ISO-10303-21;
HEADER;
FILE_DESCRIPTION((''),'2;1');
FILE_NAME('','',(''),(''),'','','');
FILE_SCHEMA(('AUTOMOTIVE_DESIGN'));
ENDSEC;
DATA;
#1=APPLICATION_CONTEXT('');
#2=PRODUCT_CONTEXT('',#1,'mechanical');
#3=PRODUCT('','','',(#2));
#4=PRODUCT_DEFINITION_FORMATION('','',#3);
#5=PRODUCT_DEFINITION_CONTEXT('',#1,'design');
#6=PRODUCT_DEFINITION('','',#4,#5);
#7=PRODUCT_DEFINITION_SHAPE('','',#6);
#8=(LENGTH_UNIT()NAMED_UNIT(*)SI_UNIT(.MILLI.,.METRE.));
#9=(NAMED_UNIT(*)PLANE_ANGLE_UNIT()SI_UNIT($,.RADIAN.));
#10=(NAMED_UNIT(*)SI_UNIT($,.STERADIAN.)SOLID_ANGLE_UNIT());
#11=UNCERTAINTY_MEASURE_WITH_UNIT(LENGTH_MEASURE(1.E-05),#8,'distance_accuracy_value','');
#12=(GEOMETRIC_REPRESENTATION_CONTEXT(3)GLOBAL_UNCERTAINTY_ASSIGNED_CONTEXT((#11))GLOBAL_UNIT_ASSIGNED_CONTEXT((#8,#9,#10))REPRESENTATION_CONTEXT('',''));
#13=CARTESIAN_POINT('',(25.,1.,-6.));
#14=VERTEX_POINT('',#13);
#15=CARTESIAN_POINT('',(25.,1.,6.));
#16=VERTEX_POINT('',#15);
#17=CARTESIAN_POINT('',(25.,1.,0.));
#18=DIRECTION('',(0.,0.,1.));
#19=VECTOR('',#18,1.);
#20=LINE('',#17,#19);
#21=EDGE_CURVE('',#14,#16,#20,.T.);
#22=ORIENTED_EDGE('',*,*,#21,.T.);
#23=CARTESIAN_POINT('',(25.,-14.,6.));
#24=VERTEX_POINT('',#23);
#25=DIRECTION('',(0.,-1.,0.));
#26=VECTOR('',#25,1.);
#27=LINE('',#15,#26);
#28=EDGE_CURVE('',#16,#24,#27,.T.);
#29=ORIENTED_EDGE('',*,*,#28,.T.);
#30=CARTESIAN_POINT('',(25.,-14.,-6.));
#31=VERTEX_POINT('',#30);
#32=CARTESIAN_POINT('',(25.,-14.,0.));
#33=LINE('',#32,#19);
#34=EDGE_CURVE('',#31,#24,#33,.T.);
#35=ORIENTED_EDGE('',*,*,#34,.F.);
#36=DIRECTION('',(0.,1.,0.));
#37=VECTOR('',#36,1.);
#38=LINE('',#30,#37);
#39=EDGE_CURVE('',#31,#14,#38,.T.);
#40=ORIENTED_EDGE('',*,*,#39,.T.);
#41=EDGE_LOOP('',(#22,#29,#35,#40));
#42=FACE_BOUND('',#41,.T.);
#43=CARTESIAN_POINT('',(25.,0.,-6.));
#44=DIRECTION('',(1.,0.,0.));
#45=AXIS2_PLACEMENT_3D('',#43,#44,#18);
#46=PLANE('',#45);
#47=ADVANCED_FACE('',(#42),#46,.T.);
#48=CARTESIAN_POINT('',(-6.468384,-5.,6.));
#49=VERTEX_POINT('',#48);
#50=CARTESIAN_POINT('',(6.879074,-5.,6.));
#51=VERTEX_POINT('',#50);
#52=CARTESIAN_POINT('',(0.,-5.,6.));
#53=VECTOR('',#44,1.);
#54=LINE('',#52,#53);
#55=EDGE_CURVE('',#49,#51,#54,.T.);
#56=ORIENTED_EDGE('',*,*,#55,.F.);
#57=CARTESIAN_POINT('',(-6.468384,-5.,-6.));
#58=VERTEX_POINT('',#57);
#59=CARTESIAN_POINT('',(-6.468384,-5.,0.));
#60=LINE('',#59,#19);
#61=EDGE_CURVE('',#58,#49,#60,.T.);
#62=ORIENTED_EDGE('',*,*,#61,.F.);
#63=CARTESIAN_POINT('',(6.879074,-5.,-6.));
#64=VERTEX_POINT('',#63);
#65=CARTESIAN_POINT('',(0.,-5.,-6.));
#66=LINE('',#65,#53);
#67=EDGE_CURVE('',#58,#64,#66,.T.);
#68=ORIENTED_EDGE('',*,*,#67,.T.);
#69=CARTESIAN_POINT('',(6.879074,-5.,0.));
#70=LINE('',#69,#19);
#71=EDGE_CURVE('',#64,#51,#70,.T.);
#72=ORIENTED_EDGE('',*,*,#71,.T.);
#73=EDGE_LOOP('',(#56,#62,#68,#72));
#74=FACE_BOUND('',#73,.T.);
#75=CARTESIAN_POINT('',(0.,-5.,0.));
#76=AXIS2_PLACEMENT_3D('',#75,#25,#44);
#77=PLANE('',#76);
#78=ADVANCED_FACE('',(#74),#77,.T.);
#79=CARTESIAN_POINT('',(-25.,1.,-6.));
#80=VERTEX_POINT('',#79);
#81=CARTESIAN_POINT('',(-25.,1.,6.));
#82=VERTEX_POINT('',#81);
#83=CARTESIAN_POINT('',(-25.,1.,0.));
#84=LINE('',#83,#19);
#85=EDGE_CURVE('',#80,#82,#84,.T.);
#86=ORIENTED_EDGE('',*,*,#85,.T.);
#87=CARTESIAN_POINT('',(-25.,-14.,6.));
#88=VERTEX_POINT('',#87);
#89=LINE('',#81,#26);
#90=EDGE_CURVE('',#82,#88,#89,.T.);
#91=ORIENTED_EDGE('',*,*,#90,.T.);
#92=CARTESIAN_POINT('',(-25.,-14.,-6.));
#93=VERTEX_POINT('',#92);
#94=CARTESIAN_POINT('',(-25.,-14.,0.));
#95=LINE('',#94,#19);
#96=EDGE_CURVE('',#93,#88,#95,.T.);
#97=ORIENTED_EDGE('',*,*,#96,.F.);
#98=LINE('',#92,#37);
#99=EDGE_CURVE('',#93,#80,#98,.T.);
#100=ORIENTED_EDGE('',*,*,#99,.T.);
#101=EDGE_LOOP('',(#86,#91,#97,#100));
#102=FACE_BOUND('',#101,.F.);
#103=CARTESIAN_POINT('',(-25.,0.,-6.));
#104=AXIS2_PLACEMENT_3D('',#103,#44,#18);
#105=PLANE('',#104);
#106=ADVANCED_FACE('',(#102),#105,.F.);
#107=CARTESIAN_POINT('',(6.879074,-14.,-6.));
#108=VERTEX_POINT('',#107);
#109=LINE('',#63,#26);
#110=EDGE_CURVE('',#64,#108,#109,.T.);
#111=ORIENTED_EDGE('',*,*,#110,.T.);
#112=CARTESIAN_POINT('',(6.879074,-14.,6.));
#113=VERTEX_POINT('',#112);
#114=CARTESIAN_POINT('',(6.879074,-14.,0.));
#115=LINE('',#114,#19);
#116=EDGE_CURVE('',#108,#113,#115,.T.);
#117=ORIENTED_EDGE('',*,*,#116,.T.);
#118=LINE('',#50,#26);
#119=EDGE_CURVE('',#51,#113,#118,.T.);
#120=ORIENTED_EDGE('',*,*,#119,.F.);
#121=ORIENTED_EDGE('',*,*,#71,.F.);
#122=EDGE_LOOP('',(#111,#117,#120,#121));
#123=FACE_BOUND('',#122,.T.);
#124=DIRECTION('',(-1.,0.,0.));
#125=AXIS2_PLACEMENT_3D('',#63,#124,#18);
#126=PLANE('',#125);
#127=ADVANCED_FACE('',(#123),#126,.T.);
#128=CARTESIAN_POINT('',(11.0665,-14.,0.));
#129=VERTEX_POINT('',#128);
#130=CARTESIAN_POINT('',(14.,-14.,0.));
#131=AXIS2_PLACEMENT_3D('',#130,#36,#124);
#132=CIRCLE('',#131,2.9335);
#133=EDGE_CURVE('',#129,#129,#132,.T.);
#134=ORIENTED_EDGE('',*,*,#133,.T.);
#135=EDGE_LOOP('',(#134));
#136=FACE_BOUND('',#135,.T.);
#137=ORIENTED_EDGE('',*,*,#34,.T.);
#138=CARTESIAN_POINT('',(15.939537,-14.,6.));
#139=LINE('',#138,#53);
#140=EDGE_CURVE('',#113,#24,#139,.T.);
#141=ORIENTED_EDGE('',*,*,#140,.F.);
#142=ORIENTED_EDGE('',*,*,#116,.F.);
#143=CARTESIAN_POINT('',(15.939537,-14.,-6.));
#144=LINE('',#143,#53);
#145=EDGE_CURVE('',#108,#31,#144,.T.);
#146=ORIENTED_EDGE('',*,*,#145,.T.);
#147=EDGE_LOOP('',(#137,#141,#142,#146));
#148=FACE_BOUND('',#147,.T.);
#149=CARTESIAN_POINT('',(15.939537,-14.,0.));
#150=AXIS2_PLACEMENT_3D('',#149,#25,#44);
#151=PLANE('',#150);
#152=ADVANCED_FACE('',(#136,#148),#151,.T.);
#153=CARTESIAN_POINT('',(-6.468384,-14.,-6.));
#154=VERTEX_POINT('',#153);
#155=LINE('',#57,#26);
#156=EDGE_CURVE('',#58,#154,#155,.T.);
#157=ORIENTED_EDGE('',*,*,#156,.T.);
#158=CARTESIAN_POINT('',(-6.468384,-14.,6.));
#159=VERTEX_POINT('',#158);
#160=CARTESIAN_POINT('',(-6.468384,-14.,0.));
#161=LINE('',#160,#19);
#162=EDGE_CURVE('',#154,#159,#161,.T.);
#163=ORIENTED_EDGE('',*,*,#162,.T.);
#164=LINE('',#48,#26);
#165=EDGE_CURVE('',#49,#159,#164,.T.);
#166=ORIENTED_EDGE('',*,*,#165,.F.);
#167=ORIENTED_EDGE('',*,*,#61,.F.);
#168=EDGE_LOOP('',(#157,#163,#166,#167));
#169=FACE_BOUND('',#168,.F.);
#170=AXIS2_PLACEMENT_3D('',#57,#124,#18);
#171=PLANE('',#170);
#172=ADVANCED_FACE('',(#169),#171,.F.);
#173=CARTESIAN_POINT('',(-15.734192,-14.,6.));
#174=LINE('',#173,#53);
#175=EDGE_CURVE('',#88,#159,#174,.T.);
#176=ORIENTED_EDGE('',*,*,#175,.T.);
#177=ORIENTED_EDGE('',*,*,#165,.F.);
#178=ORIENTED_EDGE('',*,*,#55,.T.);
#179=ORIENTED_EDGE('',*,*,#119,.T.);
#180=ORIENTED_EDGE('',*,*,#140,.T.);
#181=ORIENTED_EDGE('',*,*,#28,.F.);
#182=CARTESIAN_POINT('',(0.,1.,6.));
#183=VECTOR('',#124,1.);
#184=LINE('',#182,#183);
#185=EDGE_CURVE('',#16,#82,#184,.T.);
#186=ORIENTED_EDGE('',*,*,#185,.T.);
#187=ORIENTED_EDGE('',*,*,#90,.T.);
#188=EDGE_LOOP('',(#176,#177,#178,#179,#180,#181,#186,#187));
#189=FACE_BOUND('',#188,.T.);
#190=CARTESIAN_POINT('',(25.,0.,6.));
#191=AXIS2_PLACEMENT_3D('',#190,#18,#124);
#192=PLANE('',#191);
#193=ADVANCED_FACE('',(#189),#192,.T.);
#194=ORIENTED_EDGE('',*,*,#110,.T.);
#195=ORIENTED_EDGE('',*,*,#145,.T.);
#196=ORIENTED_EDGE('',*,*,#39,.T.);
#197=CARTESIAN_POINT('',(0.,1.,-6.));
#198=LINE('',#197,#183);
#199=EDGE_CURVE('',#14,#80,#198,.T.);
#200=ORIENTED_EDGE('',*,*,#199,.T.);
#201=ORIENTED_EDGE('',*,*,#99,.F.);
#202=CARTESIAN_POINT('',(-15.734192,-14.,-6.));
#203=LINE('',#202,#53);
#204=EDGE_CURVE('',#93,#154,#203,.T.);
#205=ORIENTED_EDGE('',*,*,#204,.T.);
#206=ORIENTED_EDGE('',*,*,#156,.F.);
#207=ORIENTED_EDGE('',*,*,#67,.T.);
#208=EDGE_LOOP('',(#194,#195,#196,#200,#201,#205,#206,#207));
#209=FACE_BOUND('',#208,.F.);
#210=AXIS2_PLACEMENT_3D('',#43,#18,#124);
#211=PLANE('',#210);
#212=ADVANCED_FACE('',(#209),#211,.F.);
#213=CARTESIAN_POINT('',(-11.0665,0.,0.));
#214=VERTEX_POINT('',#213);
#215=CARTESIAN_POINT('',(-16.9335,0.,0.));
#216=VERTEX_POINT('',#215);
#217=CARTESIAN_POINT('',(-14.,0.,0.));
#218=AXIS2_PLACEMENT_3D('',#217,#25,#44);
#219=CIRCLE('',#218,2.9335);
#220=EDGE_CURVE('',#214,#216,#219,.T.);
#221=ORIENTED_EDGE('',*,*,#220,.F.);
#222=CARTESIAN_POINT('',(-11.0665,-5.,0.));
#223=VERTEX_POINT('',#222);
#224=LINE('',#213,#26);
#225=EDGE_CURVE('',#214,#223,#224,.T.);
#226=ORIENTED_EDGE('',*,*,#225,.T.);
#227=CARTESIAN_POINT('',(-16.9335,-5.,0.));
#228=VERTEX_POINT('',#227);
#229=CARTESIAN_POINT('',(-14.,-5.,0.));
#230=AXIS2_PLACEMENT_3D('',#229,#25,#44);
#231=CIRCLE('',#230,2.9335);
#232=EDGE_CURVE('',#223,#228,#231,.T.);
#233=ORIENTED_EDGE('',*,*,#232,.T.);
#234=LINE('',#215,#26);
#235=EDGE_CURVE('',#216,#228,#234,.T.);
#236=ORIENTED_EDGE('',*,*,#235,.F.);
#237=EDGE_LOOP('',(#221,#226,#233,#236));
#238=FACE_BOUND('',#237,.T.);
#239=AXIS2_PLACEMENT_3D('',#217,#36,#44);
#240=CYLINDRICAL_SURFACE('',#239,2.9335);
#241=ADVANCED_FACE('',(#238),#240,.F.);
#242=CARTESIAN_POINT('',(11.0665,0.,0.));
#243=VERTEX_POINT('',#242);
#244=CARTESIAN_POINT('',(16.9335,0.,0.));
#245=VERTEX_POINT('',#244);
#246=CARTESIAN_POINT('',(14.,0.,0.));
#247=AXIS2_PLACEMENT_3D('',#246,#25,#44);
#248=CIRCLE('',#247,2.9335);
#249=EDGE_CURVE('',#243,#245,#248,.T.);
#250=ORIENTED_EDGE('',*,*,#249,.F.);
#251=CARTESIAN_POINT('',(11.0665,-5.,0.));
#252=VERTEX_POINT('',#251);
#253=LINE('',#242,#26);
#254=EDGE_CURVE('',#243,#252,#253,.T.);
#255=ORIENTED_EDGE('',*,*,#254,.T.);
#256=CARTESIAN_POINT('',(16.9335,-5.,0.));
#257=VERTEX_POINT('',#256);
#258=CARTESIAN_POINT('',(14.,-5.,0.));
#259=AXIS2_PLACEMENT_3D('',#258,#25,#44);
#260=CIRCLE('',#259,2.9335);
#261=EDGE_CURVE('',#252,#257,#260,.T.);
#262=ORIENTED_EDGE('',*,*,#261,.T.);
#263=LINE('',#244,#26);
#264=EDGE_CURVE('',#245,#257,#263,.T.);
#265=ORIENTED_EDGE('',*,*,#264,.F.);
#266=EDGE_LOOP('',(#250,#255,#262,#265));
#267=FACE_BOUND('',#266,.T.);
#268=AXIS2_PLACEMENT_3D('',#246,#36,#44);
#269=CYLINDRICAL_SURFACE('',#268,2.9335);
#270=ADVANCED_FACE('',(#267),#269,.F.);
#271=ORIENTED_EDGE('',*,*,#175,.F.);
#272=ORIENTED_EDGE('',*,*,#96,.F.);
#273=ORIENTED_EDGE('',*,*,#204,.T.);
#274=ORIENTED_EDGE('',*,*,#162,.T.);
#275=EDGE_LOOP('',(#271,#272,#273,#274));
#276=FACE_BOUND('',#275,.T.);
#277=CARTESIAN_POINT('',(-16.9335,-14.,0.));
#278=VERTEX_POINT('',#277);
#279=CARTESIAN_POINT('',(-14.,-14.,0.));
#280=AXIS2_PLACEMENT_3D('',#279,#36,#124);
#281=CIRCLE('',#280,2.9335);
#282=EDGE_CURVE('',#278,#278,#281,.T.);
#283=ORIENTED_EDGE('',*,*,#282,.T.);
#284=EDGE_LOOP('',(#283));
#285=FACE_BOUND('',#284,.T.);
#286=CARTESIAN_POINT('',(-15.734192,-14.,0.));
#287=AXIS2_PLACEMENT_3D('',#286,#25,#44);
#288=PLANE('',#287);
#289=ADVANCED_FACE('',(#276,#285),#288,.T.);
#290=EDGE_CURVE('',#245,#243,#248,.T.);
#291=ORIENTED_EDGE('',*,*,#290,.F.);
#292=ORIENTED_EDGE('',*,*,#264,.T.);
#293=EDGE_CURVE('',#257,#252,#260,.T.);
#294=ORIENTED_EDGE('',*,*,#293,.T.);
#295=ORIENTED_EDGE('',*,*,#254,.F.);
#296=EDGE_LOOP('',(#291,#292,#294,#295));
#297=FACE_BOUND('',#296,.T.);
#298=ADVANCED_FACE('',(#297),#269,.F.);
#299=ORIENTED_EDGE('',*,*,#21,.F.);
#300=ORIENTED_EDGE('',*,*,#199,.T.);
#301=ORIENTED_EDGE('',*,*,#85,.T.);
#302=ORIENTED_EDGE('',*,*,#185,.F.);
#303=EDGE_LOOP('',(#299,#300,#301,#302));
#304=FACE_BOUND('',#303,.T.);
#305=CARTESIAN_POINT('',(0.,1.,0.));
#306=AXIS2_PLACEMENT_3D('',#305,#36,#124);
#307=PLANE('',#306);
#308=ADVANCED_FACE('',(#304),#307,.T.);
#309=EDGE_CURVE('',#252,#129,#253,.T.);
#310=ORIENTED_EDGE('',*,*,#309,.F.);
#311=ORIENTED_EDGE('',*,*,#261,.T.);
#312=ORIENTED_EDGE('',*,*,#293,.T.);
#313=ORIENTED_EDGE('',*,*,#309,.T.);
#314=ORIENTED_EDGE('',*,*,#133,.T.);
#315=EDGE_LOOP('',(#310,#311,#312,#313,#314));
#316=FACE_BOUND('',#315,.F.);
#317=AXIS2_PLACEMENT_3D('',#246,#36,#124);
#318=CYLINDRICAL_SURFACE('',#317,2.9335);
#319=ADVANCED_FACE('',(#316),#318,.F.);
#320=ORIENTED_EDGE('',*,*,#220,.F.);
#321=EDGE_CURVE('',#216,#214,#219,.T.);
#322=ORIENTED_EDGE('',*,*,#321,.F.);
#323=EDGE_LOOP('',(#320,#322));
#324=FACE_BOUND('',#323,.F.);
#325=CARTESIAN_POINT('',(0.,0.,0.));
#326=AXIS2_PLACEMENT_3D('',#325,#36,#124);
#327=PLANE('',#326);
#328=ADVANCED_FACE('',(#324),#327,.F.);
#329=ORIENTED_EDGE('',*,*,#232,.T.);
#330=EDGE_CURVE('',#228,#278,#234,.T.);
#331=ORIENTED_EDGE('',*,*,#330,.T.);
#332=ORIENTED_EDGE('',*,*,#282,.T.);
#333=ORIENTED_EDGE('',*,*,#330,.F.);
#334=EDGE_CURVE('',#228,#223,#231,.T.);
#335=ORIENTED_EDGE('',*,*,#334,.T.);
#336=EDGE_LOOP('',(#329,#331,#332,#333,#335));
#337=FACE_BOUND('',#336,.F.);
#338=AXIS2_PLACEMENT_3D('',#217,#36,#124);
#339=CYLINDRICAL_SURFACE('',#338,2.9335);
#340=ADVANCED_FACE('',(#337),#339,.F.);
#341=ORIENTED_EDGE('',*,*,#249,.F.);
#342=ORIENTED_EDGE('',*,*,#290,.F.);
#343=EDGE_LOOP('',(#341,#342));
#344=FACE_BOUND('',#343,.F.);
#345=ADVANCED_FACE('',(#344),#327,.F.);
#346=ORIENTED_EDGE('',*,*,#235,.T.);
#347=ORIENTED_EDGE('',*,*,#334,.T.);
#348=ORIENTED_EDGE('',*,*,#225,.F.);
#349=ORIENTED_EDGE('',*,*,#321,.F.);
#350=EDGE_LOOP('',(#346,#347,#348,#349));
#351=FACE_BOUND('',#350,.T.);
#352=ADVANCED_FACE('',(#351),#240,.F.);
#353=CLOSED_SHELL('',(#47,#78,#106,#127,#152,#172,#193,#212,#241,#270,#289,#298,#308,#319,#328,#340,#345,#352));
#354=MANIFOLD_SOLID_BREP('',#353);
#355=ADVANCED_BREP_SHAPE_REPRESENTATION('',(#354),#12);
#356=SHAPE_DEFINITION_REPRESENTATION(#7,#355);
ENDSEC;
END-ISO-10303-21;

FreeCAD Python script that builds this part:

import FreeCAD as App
import Part
import Sketcher
from FreeCAD import Vector

doc = App.newDocument("Part")
params = doc.addObject("Spreadsheet::Sheet", "Params")
for row, (alias, value) in enumerate([
    ("sketch1_width", "50 mm"),
    ("sketch1_height", "12 mm"),
    ("pad1_length", "5 mm"),
    ("sketch2_height", "12 mm"),
    ("pad2_length", "9 mm"),
    ("pocket1_length", "25 mm"),
    ("sketch4_width", "50 mm"),
    ("sketch4_height", "12 mm"),
    ("pad3_length", "1 mm"),
], start=1):
    params.set(f"A{row}", alias)
    params.set(f"B{row}", "=" + value)
    params.setAlias(f"B{row}", alias)

body = doc.addObject("PartDesign::Body", "Body")

sketch1 = body.newObject("Sketcher::SketchObject", "Sketch")
sketch1.AttachmentSupport = (doc.getObject("XZ_Plane"), [""])
sketch1.MapMode = "FlatFace"
sketch1.addGeometry(Part.LineSegment(Vector(-25, 6, 0), Vector(-25, -6, 0)), False)
sketch1.addGeometry(Part.LineSegment(Vector(-25, -6, 0), Vector(25, -6, 0)), False)
sketch1.addGeometry(Part.LineSegment(Vector(25, -6, 0), Vector(25, 6, 0)), False)
sketch1.addGeometry(Part.LineSegment(Vector(25, 6, 0), Vector(-25, 6, 0)), False)
sketch1.addGeometry(Part.Circle(Vector(-14, 0, 0), Vector(0, 0, 1), 2.9), False)
sketch1.addGeometry(Part.Circle(Vector(14, 0, 0), Vector(0, 0, 1), 2.9), False)
sketch1.addConstraint(Sketcher.Constraint("Coincident", 0, 2, 1, 1))
sketch1.addConstraint(Sketcher.Constraint("Coincident", 1, 2, 2, 1))
sketch1.addConstraint(Sketcher.Constraint("Coincident", 2, 2, 3, 1))
sketch1.addConstraint(Sketcher.Constraint("Coincident", 3, 2, 0, 1))
sketch1.addConstraint(Sketcher.Constraint("Vertical", 0))
sketch1.addConstraint(Sketcher.Constraint("Horizontal", 1))
sketch1.addConstraint(Sketcher.Constraint("Vertical", 2))
sketch1.addConstraint(Sketcher.Constraint("Horizontal", 3))
sketch1.addConstraint(Sketcher.Constraint("Equal", 4, 5))
sketch1.addConstraint(Sketcher.Constraint("Symmetric", 4, 3, 5, 3, -1, 1))
sketch1.addConstraint(Sketcher.Constraint("Symmetric", 0, 2, 2, 2, -1, 1))
sketch1.addConstraint(Sketcher.Constraint("PointOnObject", 4, 3, -1))
sketch1.addConstraint(Sketcher.Constraint("DistanceX", 1, 1, 1, 2, 50.0))
sketch1.addConstraint(Sketcher.Constraint("DistanceY", 0, 2, 0, 1, 12.0))
sketch1.addConstraint(Sketcher.Constraint("Diameter", 4, 5.867))
sketch1.addConstraint(Sketcher.Constraint("DistanceX", 4, 3, -1, 1, 14.0))
sketch1.setExpression("Constraints[12]", "Params.sketch1_width")
sketch1.setExpression("Constraints[13]", "Params.sketch1_height")
pad1 = body.newObject("PartDesign::Pad", "Pad")
pad1.Profile = sketch1
pad1.setExpression("Length", "Params.pad1_length")

sketch2 = body.newObject("Sketcher::SketchObject", "Sketch001")
sketch2.AttachmentSupport = (doc.getObject("XZ_Plane"), [""])
sketch2.MapMode = "FlatFace"
sketch2.AttachmentOffset = App.Placement(Vector(0, 0, 5), App.Rotation())
sketch2.addGeometry(Part.LineSegment(Vector(-25, 6, 0), Vector(-25, -6, 0)), False)
sketch2.addGeometry(Part.LineSegment(Vector(-25, -6, 0), Vector(-6, -6, 0)), False)
sketch2.addGeometry(Part.LineSegment(Vector(-6, -6, 0), Vector(-6, 6, 0)), False)
sketch2.addGeometry(Part.LineSegment(Vector(-6, 6, 0), Vector(-25, 6, 0)), False)
sketch2.addGeometry(Part.LineSegment(Vector(7, 6, 0), Vector(7, -6, 0)), False)
sketch2.addGeometry(Part.LineSegment(Vector(7, -6, 0), Vector(25, -6, 0)), False)
sketch2.addGeometry(Part.LineSegment(Vector(25, -6, 0), Vector(25, 6, 0)), False)
sketch2.addGeometry(Part.LineSegment(Vector(25, 6, 0), Vector(7, 6, 0)), False)
sketch2.addConstraint(Sketcher.Constraint("Coincident", 0, 2, 1, 1))
sketch2.addConstraint(Sketcher.Constraint("Coincident", 1, 2, 2, 1))
sketch2.addConstraint(Sketcher.Constraint("Coincident", 2, 2, 3, 1))
sketch2.addConstraint(Sketcher.Constraint("Coincident", 3, 2, 0, 1))
sketch2.addConstraint(Sketcher.Constraint("Coincident", 4, 2, 5, 1))
sketch2.addConstraint(Sketcher.Constraint("Coincident", 5, 2, 6, 1))
sketch2.addConstraint(Sketcher.Constraint("Coincident", 6, 2, 7, 1))
sketch2.addConstraint(Sketcher.Constraint("Coincident", 7, 2, 4, 1))
sketch2.addConstraint(Sketcher.Constraint("Vertical", 0))
sketch2.addConstraint(Sketcher.Constraint("Horizontal", 1))
sketch2.addConstraint(Sketcher.Constraint("Vertical", 2))
sketch2.addConstraint(Sketcher.Constraint("Horizontal", 3))
sketch2.addConstraint(Sketcher.Constraint("Vertical", 4))
sketch2.addConstraint(Sketcher.Constraint("Horizontal", 5))
sketch2.addConstraint(Sketcher.Constraint("Vertical", 6))
sketch2.addConstraint(Sketcher.Constraint("Horizontal", 7))
sketch2.addConstraint(Sketcher.Constraint("Symmetric", 3, 2, 5, 2, -1, 1))
sketch2.addConstraint(Sketcher.Constraint("Horizontal", 1, 2, 4, 2))
sketch2.addConstraint(Sketcher.Constraint("Horizontal", 3, 2, 6, 2))
sketch2.addConstraint(Sketcher.Constraint("DistanceY", 0, 2, 0, 1, 12.0))
sketch2.addConstraint(Sketcher.Constraint("DistanceX", 0, 2, -1, 1, 25.0))
sketch2.addConstraint(Sketcher.Constraint("DistanceX", 1, 1, 1, 2, 18.531616))
sketch2.addConstraint(Sketcher.Constraint("DistanceX", 5, 1, 5, 2, 18.120926))
sketch2.setExpression("Constraints[19]", "Params.sketch2_height")
pad2 = body.newObject("PartDesign::Pad", "Pad001")
pad2.Profile = sketch2
pad2.setExpression("Length", "Params.pad2_length")

sketch3 = body.newObject("Sketcher::SketchObject", "Sketch002")
sketch3.AttachmentSupport = (doc.getObject("XZ_Plane"), [""])
sketch3.MapMode = "FlatFace"
sketch3.addGeometry(Part.Circle(Vector(14, 0, 0), Vector(0, 0, 1), 2.9), False)
sketch3.addGeometry(Part.Circle(Vector(-14, 0, 0), Vector(0, 0, 1), 2.9), False)
sketch3.addConstraint(Sketcher.Constraint("Equal", 0, 1))
sketch3.addConstraint(Sketcher.Constraint("Symmetric", 0, 3, 1, 3, -1, 1))
sketch3.addConstraint(Sketcher.Constraint("PointOnObject", 0, 3, -1))
sketch3.addConstraint(Sketcher.Constraint("Diameter", 0, 5.867))
sketch3.addConstraint(Sketcher.Constraint("DistanceX", -1, 1, 0, 3, 14.0))
pocket1 = body.newObject("PartDesign::Pocket", "Pocket")
pocket1.Profile = sketch3
pocket1.setExpression("Length", "Params.pocket1_length")
pocket1.Reversed = True

sketch4 = body.newObject("Sketcher::SketchObject", "Sketch003")
sketch4.AttachmentSupport = (doc.getObject("XZ_Plane"), [""])
sketch4.MapMode = "FlatFace"
sketch4.addGeometry(Part.LineSegment(Vector(25, 6, 0), Vector(25, -6, 0)), False)
sketch4.addGeometry(Part.LineSegment(Vector(25, -6, 0), Vector(-25, -6, 0)), False)
sketch4.addGeometry(Part.LineSegment(Vector(-25, -6, 0), Vector(-25, 6, 0)), False)
sketch4.addGeometry(Part.LineSegment(Vector(-25, 6, 0), Vector(25, 6, 0)), False)
sketch4.addConstraint(Sketcher.Constraint("Coincident", 0, 2, 1, 1))
sketch4.addConstraint(Sketcher.Constraint("Coincident", 1, 2, 2, 1))
sketch4.addConstraint(Sketcher.Constraint("Coincident", 2, 2, 3, 1))
sketch4.addConstraint(Sketcher.Constraint("Coincident", 3, 2, 0, 1))
sketch4.addConstraint(Sketcher.Constraint("Vertical", 0))
sketch4.addConstraint(Sketcher.Constraint("Horizontal", 1))
sketch4.addConstraint(Sketcher.Constraint("Vertical", 2))
sketch4.addConstraint(Sketcher.Constraint("Horizontal", 3))
sketch4.addConstraint(Sketcher.Constraint("Symmetric", 0, 2, 2, 2, -1, 1))
sketch4.addConstraint(Sketcher.Constraint("DistanceX", 1, 2, 1, 1, 50.0))
sketch4.addConstraint(Sketcher.Constraint("DistanceY", 0, 2, 0, 1, 12.0))
sketch4.setExpression("Constraints[9]", "Params.sketch4_width")
sketch4.setExpression("Constraints[10]", "Params.sketch4_height")
pad3 = body.newObject("PartDesign::Pad", "Pad002")
pad3.Profile = sketch4
pad3.setExpression("Length", "Params.pad3_length")
pad3.Reversed = True

doc.recompute()
